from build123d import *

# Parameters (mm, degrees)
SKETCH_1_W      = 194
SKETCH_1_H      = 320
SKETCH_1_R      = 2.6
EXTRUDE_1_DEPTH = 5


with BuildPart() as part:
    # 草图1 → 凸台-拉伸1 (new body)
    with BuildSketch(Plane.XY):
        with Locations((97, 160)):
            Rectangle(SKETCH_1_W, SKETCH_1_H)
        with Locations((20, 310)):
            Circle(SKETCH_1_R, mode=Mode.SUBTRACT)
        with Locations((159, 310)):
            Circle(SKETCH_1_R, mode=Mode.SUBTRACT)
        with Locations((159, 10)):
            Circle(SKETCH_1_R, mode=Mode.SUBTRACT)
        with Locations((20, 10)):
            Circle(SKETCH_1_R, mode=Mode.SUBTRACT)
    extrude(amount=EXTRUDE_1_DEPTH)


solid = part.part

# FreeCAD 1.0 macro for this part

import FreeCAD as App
import Part
import Sketcher
from FreeCAD import Vector


def add_polygon(sketch, points):
    """Adds a closed chain of lines whose ends are joined by coincident constraints."""
    first, n = sketch.GeometryCount, len(points)
    for a, b in zip(points, points[1:] + points[:1]):
        sketch.addGeometry(Part.LineSegment(App.Vector(*a, 0), App.Vector(*b, 0)), False)
    for i in range(n):
        sketch.addConstraint(Sketcher.Constraint("Coincident", first + i, 2, first + (i + 1) % n, 1))

doc = App.newDocument("Part")
body = doc.addObject("PartDesign::Body", "Body")

# Sketch on XY plane
sketch1 = body.newObject("Sketcher::SketchObject", "Sketch")
sketch1.AttachmentSupport = (doc.getObject("XY_Plane"), [""])
sketch1.MapMode = "FlatFace"
add_polygon(sketch1, [(0, 320), (0, 0), (194, 0), (194, 320)])  # lines 0-3
sketch1.addGeometry(Part.Circle(Vector(20, 10, 0), Vector(0, 0, 1), 2.6), False)  # 4
sketch1.addGeometry(Part.Circle(Vector(159, 10, 0), Vector(0, 0, 1), 2.6), False)  # 5
sketch1.addGeometry(Part.Circle(Vector(20, 310, 0), Vector(0, 0, 1), 2.6), False)  # 6
sketch1.addGeometry(Part.Circle(Vector(159, 310, 0), Vector(0, 0, 1), 2.6), False)  # 7
sketch1.addConstraint([
    Sketcher.Constraint("Vertical", 0),
    Sketcher.Constraint("Horizontal", 1),
    Sketcher.Constraint("Vertical", 2),
    Sketcher.Constraint("Horizontal", 3),
    Sketcher.Constraint("Coincident", 0, 2, -1, 1),
    Sketcher.Constraint("Equal", 4, 5),
    Sketcher.Constraint("Equal", 5, 6),
    Sketcher.Constraint("Equal", 6, 7),
    Sketcher.Constraint("Horizontal", 4, 3, 5, 3),
    Sketcher.Constraint("Horizontal", 6, 3, 7, 3),
    Sketcher.Constraint("Vertical", 4, 3, 6, 3),
    Sketcher.Constraint("Vertical", 5, 3, 7, 3),
    Sketcher.Constraint("Diameter", 4, 5.2),
    Sketcher.Constraint("DistanceX", 1, 1, 1, 2, 194.0),
    Sketcher.Constraint("DistanceY", 0, 2, 0, 1, 320.0),
    Sketcher.Constraint("DistanceX", -1, 1, 4, 3, 20.0),
    Sketcher.Constraint("DistanceY", -1, 1, 4, 3, 10.0),
    Sketcher.Constraint("DistanceX", -1, 1, 5, 3, 159.0),
    Sketcher.Constraint("DistanceY", -1, 1, 6, 3, 310.0),
])
pad1 = body.newObject("PartDesign::Pad", "Pad")
pad1.Profile = sketch1
pad1.Length = 5

doc.recompute()
